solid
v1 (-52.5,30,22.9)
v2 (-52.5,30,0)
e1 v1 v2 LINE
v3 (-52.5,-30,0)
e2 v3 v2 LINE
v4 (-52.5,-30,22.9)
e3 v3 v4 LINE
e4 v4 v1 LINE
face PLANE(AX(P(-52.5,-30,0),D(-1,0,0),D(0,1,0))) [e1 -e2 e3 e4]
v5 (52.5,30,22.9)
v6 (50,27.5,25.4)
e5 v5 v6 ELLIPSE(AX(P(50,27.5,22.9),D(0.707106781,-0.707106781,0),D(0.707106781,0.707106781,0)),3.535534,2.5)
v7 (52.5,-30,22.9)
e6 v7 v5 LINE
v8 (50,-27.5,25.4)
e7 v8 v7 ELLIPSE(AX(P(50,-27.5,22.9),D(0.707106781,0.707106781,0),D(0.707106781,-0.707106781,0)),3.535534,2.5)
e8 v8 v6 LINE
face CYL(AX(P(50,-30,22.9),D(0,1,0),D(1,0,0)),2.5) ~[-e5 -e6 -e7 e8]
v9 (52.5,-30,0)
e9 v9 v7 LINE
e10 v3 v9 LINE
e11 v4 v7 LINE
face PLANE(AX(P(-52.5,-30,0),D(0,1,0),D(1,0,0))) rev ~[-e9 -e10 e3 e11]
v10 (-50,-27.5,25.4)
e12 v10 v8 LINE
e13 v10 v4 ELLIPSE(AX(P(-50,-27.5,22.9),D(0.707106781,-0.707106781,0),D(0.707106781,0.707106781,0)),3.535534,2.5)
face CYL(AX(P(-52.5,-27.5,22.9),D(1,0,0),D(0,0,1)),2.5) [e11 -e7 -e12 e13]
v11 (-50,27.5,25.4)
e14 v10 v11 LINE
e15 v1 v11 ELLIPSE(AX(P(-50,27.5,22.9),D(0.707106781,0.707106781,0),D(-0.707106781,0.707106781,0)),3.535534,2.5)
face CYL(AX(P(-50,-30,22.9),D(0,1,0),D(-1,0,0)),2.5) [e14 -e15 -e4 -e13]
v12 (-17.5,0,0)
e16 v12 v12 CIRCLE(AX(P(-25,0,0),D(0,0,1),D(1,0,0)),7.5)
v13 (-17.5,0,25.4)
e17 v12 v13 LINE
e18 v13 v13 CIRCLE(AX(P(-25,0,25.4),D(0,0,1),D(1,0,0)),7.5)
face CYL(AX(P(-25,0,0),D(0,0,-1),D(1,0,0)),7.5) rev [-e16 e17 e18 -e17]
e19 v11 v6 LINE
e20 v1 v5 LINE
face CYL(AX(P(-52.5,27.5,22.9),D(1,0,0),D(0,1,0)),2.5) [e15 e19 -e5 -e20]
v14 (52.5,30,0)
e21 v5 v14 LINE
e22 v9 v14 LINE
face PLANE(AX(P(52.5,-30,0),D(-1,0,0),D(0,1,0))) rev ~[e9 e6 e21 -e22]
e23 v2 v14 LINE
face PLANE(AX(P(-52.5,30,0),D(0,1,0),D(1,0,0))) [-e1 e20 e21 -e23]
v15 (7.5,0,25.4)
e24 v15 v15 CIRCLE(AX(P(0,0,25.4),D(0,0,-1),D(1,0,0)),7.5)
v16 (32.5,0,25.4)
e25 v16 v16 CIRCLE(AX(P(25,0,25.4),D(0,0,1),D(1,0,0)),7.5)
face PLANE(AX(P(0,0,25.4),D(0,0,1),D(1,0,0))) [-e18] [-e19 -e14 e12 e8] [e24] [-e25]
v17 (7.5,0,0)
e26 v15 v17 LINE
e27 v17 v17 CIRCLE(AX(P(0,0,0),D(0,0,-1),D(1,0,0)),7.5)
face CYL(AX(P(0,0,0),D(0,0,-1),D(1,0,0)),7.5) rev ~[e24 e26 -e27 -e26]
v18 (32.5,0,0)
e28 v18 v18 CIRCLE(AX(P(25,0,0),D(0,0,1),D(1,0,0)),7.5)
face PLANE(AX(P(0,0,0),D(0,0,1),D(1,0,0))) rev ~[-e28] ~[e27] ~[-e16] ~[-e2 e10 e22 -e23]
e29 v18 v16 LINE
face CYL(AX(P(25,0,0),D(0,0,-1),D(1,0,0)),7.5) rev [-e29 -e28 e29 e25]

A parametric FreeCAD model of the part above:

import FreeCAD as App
import Part
import Sketcher
from FreeCAD import Vector


def edges_at(feature, points):
    """Names of the edges that pass closest to the given points."""
    edges = feature.Shape.Edges
    near = lambda p: min(range(len(edges)), key=lambda i: edges[i].distToShape(Part.Vertex(*p))[0])
    return sorted({f"Edge{near(p) + 1}" for p in points})

doc = App.newDocument("Part")
body = doc.addObject("PartDesign::Body", "Body")

sketch1 = body.newObject("Sketcher::SketchObject", "Sketch")
sketch1.AttachmentSupport = (doc.getObject("XY_Plane"), [""])
sketch1.MapMode = "FlatFace"
sketch1.addGeometry([
    Part.LineSegment(Vector(-52.5, 30, 0), Vector(-52.5, -30, 0)),
    Part.LineSegment(Vector(-52.5, -30, 0), Vector(52.5, -30, 0)),
    Part.LineSegment(Vector(52.5, -30, 0), Vector(52.5, 30, 0)),
    Part.LineSegment(Vector(52.5, 30, 0), Vector(-52.5, 30, 0)),
    Part.Circle(Vector(-25, 0, 0), Vector(0, 0, 1), 7.5),
    Part.Circle(Vector(0, 0, 0), Vector(0, 0, 1), 7.5),
    Part.Circle(Vector(25, 0, 0), Vector(0, 0, 1), 7.5),
], False)
sketch1.addConstraint([
    Sketcher.Constraint("Coincident", 0, 2, 1, 1),
    Sketcher.Constraint("Coincident", 1, 2, 2, 1),
    Sketcher.Constraint("Coincident", 2, 2, 3, 1),
    Sketcher.Constraint("Coincident", 3, 2, 0, 1),
    Sketcher.Constraint("Vertical", 0),
    Sketcher.Constraint("Horizontal", 1),
    Sketcher.Constraint("Vertical", 2),
    Sketcher.Constraint("Horizontal", 3),
    Sketcher.Constraint("Coincident", 5, 3, -1, 1),
    Sketcher.Constraint("Equal", 4, 5),
    Sketcher.Constraint("Equal", 5, 6),
    Sketcher.Constraint("Symmetric", 4, 3, 6, 3, -1, 1),
    Sketcher.Constraint("Symmetric", 0, 2, 2, 2, -1, 1),
    Sketcher.Constraint("PointOnObject", 4, 3, -1),
    Sketcher.Constraint("Diameter", 4, 15.0),
    Sketcher.Constraint("DistanceX", 1, 1, 1, 2, 105.0),
    Sketcher.Constraint("DistanceY", 0, 2, 0, 1, 60.0),
    Sketcher.Constraint("DistanceX", 4, 3, -1, 1, 25.0),
])
pad1 = body.newObject("PartDesign::Pad", "Pad")
pad1.Profile = sketch1
pad1.Length = 20

sketch2 = body.newObject("Sketcher::SketchObject", "Sketch001")
sketch2.AttachmentSupport = (doc.getObject("XY_Plane"), [""])
sketch2.MapMode = "FlatFace"
sketch2.addGeometry([
    Part.LineSegment(Vector(-52.5, 30, 0), Vector(-52.5, -30, 0)),
    Part.LineSegment(Vector(-52.5, -30, 0), Vector(52.5, -30, 0)),
    Part.LineSegment(Vector(52.5, -30, 0), Vector(52.5, 30, 0)),
    Part.LineSegment(Vector(52.5, 30, 0), Vector(-52.5, 30, 0)),
    Part.Circle(Vector(-25, 0, 0), Vector(0, 0, 1), 7.5),
    Part.Circle(Vector(0, 0, 0), Vector(0, 0, 1), 7.5),
    Part.Circle(Vector(25, 0, 0), Vector(0, 0, 1), 7.5),
], False)
sketch2.addConstraint([
    Sketcher.Constraint("Coincident", 0, 2, 1, 1),
    Sketcher.Constraint("Coincident", 1, 2, 2, 1),
    Sketcher.Constraint("Coincident", 2, 2, 3, 1),
    Sketcher.Constraint("Coincident", 3, 2, 0, 1),
    Sketcher.Constraint("Vertical", 0),
    Sketcher.Constraint("Horizontal", 1),
    Sketcher.Constraint("Vertical", 2),
    Sketcher.Constraint("Horizontal", 3),
    Sketcher.Constraint("Coincident", 5, 3, -1, 1),
    Sketcher.Constraint("Equal", 4, 5),
    Sketcher.Constraint("Equal", 5, 6),
    Sketcher.Constraint("Symmetric", 4, 3, 6, 3, -1, 1),
    Sketcher.Constraint("Symmetric", 0, 2, 2, 2, -1, 1),
    Sketcher.Constraint("PointOnObject", 4, 3, -1),
    Sketcher.Constraint("Diameter", 4, 15.0),
    Sketcher.Constraint("DistanceX", 1, 1, 1, 2, 105.0),
    Sketcher.Constraint("DistanceY", 0, 2, 0, 1, 60.0),
    Sketcher.Constraint("DistanceX", 4, 3, -1, 1, 25.0),
])
pad2 = body.newObject("PartDesign::Pad", "Pad001")
pad2.Profile = sketch2
pad2.Length = 25.4
doc.recompute()

fillet = body.newObject("PartDesign::Fillet", "Fillet")
fillet.Base = (pad2, edges_at(pad2, [
    (0, -30, 25.4),
    (-52.5, 0, 25.4),
    (0, 30, 25.4),
    (52.5, 0, 25.4),
]))
fillet.Radius = 2.5

doc.recompute()
